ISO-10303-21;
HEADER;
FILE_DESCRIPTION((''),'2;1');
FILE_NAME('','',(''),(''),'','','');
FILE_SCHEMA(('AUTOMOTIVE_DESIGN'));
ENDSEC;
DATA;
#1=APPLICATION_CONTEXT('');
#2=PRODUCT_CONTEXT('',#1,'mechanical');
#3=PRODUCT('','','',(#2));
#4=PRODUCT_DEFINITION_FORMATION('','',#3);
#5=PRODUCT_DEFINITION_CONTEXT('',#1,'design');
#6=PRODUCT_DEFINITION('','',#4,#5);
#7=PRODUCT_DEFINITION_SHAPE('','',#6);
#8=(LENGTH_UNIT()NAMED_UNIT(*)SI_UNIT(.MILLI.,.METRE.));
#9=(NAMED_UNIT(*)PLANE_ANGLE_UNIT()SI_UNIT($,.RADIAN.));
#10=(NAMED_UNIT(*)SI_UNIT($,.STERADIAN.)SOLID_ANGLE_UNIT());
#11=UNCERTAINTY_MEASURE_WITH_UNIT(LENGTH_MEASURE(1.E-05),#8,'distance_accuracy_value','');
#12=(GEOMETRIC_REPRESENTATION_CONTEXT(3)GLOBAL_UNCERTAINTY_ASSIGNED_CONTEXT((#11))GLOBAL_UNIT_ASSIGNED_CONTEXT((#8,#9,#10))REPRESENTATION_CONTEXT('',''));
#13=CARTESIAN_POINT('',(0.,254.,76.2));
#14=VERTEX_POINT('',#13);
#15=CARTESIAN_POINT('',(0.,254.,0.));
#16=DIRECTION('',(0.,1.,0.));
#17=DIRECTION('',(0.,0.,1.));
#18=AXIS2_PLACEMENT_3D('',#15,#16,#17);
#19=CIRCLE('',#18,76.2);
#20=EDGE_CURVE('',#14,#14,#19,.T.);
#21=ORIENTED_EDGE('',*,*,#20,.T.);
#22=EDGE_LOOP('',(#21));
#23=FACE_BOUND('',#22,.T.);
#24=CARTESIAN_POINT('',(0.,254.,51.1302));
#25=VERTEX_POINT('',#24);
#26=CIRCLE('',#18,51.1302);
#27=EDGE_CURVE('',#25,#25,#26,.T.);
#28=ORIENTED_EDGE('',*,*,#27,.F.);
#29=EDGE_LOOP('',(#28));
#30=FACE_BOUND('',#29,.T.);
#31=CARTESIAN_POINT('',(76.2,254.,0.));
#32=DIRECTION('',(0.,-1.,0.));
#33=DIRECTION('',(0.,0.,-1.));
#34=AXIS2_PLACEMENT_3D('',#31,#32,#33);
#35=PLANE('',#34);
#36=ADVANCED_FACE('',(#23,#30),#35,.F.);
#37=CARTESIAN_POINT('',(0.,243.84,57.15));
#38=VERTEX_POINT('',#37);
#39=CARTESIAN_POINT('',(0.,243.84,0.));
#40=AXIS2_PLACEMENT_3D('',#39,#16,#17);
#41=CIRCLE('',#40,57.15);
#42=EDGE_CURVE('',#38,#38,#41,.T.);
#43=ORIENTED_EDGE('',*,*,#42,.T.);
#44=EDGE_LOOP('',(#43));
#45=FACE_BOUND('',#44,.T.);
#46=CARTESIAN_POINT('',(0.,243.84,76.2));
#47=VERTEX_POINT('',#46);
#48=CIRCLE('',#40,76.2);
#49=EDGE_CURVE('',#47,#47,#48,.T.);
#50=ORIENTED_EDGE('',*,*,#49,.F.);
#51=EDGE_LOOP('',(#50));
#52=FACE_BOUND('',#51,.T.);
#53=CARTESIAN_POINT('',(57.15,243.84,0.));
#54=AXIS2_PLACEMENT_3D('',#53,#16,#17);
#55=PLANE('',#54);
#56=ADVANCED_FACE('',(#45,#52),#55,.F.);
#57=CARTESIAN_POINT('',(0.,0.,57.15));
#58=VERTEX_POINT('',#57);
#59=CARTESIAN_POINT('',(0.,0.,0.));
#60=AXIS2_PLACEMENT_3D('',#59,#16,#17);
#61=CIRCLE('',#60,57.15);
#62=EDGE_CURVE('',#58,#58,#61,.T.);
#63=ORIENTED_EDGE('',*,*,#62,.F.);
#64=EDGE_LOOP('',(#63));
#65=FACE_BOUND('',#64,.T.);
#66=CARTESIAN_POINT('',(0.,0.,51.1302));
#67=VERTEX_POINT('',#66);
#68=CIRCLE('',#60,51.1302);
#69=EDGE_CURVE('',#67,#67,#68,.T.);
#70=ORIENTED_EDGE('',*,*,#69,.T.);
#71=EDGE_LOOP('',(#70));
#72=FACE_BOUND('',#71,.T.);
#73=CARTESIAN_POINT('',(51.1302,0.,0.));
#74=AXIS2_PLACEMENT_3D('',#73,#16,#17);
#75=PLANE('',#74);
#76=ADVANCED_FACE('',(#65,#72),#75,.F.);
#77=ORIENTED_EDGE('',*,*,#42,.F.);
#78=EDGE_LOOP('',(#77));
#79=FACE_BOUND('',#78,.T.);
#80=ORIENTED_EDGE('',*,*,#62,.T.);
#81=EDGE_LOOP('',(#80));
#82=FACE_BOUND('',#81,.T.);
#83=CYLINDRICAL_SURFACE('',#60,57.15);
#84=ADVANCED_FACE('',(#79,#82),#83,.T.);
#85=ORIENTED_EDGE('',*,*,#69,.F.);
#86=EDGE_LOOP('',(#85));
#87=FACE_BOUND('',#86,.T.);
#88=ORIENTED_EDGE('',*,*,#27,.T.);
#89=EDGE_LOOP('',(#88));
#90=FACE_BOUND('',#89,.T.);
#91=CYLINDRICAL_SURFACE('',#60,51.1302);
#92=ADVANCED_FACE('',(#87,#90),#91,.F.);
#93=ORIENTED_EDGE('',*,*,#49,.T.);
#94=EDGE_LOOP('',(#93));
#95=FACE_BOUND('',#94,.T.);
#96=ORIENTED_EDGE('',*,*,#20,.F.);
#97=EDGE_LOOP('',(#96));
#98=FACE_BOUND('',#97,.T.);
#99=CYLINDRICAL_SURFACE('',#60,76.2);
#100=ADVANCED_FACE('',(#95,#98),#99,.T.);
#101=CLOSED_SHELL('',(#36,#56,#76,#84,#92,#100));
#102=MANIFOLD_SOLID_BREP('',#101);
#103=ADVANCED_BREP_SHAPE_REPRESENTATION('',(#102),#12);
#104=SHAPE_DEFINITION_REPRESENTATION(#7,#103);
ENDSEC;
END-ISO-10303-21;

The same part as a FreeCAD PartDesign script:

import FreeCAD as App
import Part
import Sketcher
Q = App.Units.Quantity

doc = App.newDocument("Part")
body = doc.addObject("PartDesign::Body", "Body")

sketch1 = body.newObject("Sketcher::SketchObject", "Sketch")
sketch1.AttachmentSupport = (doc.getObject("XY_Plane"), [""])
sketch1.MapMode = "FlatFace"
sketch1.addGeometry(Part.LineSegment(App.Vector(51.1302, 254, 0), App.Vector(51.1302, 0, 0)), False)
sketch1.addGeometry(Part.LineSegment(App.Vector(51.1302, 0, 0), App.Vector(57.15, 0, 0)), False)
sketch1.addGeometry(Part.LineSegment(App.Vector(57.15, 0, 0), App.Vector(57.15, 243.84, 0)), False)
sketch1.addGeometry(Part.LineSegment(App.Vector(57.15, 243.84, 0), App.Vector(76.2, 243.84, 0)), False)
sketch1.addGeometry(Part.LineSegment(App.Vector(76.2, 243.84, 0), App.Vector(76.2, 254, 0)), False)
sketch1.addGeometry(Part.LineSegment(App.Vector(76.2, 254, 0), App.Vector(51.1302, 254, 0)), False)
sketch1.addConstraint(Sketcher.Constraint("Coincident", 0, 2, 1, 1))
sketch1.addConstraint(Sketcher.Constraint("Coincident", 1, 2, 2, 1))
sketch1.addConstraint(Sketcher.Constraint("Coincident", 2, 2, 3, 1))
sketch1.addConstraint(Sketcher.Constraint("Coincident", 3, 2, 4, 1))
sketch1.addConstraint(Sketcher.Constraint("Coincident", 4, 2, 5, 1))
sketch1.addConstraint(Sketcher.Constraint("Coincident", 5, 2, 0, 1))
sketch1.addConstraint(Sketcher.Constraint("Vertical", 0))
sketch1.addConstraint(Sketcher.Constraint("Horizontal", 1))
sketch1.addConstraint(Sketcher.Constraint("Vertical", 2))
sketch1.addConstraint(Sketcher.Constraint("Horizontal", 3))
sketch1.addConstraint(Sketcher.Constraint("Vertical", 4))
sketch1.addConstraint(Sketcher.Constraint("Horizontal", 5))
sketch1.addConstraint(Sketcher.Constraint("PointOnObject", 0, 2, -1))
sketch1.addConstraint(Sketcher.Constraint("DistanceY", 0, 2, 0, 1, Q("10 in")))
sketch1.addConstraint(Sketcher.Constraint("DistanceY", 2, 1, 2, 2, Q("9.6 in")))
sketch1.addConstraint(Sketcher.Constraint("DistanceX", -1, 1, 3, 2, Q("3 in")))
sketch1.addConstraint(Sketcher.Constraint("DistanceX", 3, 1, 3, 2, Q("0.75 in")))
sketch1.addConstraint(Sketcher.Constraint("DistanceX", 1, 1, 1, 2, Q("0.237 in")))
revolution = body.newObject("PartDesign::Revolution", "Revolution")
revolution.Profile = sketch1
revolution.ReferenceAxis = (sketch1, ["V_Axis"])
revolution.Angle = 360

doc.recompute()
